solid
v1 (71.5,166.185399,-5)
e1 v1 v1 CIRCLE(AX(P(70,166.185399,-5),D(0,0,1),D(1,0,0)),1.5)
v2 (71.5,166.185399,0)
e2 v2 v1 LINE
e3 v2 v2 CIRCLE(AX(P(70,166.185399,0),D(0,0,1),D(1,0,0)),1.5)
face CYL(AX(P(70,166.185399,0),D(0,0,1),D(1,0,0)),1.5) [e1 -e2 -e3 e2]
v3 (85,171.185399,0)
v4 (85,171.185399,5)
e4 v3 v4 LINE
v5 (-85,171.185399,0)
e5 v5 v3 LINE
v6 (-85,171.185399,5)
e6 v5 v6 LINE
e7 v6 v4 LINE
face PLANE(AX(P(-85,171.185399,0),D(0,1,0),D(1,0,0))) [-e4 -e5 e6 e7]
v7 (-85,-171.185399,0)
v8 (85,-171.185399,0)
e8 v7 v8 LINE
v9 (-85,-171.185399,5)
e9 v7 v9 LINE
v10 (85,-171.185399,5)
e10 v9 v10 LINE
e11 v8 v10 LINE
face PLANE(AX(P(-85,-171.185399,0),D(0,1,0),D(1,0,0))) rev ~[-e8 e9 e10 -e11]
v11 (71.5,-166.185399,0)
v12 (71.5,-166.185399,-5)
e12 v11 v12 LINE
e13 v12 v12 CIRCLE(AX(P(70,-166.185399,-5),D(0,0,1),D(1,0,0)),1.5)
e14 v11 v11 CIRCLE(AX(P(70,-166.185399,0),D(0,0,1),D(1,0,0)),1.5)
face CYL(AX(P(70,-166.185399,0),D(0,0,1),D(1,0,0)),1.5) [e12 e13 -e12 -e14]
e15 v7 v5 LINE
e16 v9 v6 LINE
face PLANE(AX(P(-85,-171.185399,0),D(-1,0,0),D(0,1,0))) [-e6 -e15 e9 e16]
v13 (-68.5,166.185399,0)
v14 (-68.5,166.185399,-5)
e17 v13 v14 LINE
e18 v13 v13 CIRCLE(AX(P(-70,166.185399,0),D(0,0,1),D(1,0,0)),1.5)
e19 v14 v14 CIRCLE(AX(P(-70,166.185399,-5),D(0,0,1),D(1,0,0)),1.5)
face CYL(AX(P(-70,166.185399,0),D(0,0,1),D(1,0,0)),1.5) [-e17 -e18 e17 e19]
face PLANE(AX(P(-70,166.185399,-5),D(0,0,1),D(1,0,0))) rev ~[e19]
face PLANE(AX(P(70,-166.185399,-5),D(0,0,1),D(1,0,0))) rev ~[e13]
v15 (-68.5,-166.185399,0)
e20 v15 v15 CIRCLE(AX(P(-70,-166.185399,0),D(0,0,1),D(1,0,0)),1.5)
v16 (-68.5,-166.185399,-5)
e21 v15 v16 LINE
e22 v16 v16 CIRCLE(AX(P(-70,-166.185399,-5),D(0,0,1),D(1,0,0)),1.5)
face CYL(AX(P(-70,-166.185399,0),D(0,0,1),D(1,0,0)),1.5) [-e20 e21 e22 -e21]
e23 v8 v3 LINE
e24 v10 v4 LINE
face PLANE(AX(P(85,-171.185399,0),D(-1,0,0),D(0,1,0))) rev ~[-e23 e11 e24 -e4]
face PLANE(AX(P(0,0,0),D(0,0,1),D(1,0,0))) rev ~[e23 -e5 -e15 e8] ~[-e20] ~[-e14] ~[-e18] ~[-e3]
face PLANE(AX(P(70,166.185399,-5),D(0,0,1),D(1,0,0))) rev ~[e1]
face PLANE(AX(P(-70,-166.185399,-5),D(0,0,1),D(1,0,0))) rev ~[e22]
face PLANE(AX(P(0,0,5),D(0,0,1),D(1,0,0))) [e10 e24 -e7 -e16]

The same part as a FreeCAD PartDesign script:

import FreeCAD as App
import Part
import Sketcher
from FreeCAD import Vector


def add_polygon(sketch, points):
    """Adds a closed chain of lines whose ends are joined by coincident constraints."""
    first, n = sketch.GeometryCount, len(points)
    for a, b in zip(points, points[1:] + points[:1]):
        sketch.addGeometry(Part.LineSegment(App.Vector(*a, 0), App.Vector(*b, 0)), False)
    for i in range(n):
        sketch.addConstraint(Sketcher.Constraint("Coincident", first + i, 2, first + (i + 1) % n, 1))

doc = App.newDocument("Part")
body = doc.addObject("PartDesign::Body", "Body")

# Sketch on XY plane
sketch1 = doc.addObject("Sketcher::SketchObject", "Sketch")
body.addObject(sketch1)
sketch1.AttachmentSupport = (doc.XY_Plane, [""])
sketch1.MapMode = "FlatFace"
add_polygon(sketch1, [(-85, 171), (-85, -171), (85, -171), (85, 171)])  # lines 0-3
sketch1.addConstraint([
    Sketcher.Constraint("Vertical", 0),
    Sketcher.Constraint("Horizontal", 1),
    Sketcher.Constraint("Vertical", 2),
    Sketcher.Constraint("Horizontal", 3),
    Sketcher.Constraint("Symmetric", 0, 2, 2, 2, -1, 1),
    Sketcher.Constraint("DistanceX", 1, 1, 1, 2, 170.0),
    Sketcher.Constraint("DistanceY", 0, 2, 0, 1, 342.370798),
])
pad1 = doc.addObject("PartDesign::Pad", "Pad")
body.addObject(pad1)
pad1.Profile = sketch1
pad1.Length = 5

# Sketch on XY plane
sketch2 = doc.addObject("Sketcher::SketchObject", "Sketch001")
body.addObject(sketch2)
sketch2.AttachmentSupport = (doc.XY_Plane, [""])
sketch2.MapMode = "FlatFace"
sketch2.addGeometry([
    Part.Circle(Vector(70, -166.2, 0), Vector(0, 0, 1), 1.5),
    Part.Circle(Vector(-70, -166.2, 0), Vector(0, 0, 1), 1.5),
    Part.Circle(Vector(70, 166.2, 0), Vector(0, 0, 1), 1.5),
    Part.Circle(Vector(-70, 166.2, 0), Vector(0, 0, 1), 1.5),
], False)
sketch2.addConstraint([
    Sketcher.Constraint("Equal", 0, 1),
    Sketcher.Constraint("Equal", 1, 2),
    Sketcher.Constraint("Equal", 2, 3),
    Sketcher.Constraint("Symmetric", 1, 3, 2, 3, -1, 1),
    Sketcher.Constraint("Symmetric", 0, 3, 3, 3, -1, 1),
    Sketcher.Constraint("Symmetric", 0, 3, 1, 3, -2),
    Sketcher.Constraint("Diameter", 0, 3.0),
    Sketcher.Constraint("DistanceX", -1, 1, 0, 3, 70.0),
    Sketcher.Constraint("DistanceY", 0, 3, -1, 1, 166.185399),
])
pad2 = doc.addObject("PartDesign::Pad", "Pad001")
body.addObject(pad2)
pad2.Profile = sketch2
pad2.Length = 5
pad2.Reversed = True

doc.recompute()
